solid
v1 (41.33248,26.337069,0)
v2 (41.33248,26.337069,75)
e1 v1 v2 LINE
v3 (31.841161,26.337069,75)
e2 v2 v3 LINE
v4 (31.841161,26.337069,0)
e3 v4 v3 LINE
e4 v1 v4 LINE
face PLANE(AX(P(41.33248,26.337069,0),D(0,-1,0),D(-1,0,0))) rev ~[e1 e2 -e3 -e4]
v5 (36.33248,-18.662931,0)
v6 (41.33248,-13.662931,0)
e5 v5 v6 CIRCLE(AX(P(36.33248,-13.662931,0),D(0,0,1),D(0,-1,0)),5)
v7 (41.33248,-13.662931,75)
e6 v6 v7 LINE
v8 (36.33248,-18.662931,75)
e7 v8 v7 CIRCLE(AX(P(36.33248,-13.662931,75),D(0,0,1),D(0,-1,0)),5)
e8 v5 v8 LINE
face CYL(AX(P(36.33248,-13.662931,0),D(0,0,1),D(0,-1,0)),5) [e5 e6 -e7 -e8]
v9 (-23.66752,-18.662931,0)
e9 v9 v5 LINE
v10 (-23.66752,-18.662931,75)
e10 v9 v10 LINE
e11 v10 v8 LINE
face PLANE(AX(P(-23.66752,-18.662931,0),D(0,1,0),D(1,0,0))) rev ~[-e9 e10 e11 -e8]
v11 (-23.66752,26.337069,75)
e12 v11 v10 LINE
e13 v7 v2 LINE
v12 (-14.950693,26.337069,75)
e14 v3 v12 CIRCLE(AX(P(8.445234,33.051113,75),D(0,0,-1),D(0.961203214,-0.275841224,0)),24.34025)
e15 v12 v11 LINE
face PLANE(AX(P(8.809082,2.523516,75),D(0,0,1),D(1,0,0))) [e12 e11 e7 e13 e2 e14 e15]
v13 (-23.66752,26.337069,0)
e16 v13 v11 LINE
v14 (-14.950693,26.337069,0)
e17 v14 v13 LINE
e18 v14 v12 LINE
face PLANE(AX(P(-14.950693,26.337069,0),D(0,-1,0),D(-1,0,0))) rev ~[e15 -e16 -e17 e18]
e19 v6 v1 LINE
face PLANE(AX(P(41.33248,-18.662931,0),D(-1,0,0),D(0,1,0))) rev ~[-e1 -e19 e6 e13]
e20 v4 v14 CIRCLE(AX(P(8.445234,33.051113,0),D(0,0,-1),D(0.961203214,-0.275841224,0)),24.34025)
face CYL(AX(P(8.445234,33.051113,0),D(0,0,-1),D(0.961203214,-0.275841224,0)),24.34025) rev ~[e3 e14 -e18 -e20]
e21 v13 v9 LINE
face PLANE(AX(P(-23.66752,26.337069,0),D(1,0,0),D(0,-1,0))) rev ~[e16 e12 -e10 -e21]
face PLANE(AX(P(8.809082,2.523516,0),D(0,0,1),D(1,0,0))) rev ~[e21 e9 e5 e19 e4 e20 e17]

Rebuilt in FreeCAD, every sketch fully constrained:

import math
import FreeCAD as App
import Part
import Sketcher
Q = App.Units.Quantity


def edges_at(feature, points):
    """Names of the edges that pass closest to the given points."""
    edges = feature.Shape.Edges
    near = lambda p: min(range(len(edges)), key=lambda i: edges[i].distToShape(Part.Vertex(*p))[0])
    return sorted({f"Edge{near(p) + 1}" for p in points})

doc = App.newDocument("Part")
params = doc.addObject("Spreadsheet::Sheet", "Params")
for row, (alias, value) in enumerate([
    ("sketch1_width", "65 mm"),
    ("sketch1_height", "45 mm"),
    ("pad1_length", "75 mm"),
    ("fillet_radius", "5 mm"),
], start=1):
    params.set(f"A{row}", alias)
    params.set(f"B{row}", "=" + value)
    params.setAlias(f"B{row}", alias)

body = doc.addObject("PartDesign::Body", "Body")

# Sketch on XY plane
sketch1 = body.newObject("Sketcher::SketchObject", "Sketch")
sketch1.AttachmentSupport = (doc.getObject("XY_Plane"), [""])
sketch1.MapMode = "FlatFace"
sketch1.addGeometry([
    Part.LineSegment(App.Vector(-23.66752, 26.337069, 0), App.Vector(-23.66752, -18.662931, 0)),  # 0
    Part.LineSegment(App.Vector(-23.66752, -18.662931, 0), App.Vector(41.33248, -18.662931, 0)),  # 1
    Part.LineSegment(App.Vector(41.33248, -18.662931, 0), App.Vector(41.33248, 26.337069, 0)),  # 2
    Part.LineSegment(App.Vector(41.33248, 26.337069, 0), App.Vector(31.841161, 26.337069, 0)),  # 3
    Part.ArcOfCircle(Part.Circle(App.Vector(8.445234, 33.051113, 0), App.Vector(0, 0, 1), 24.34025), math.radians(-163.987848), math.radians(-16.012152)),  # 4
    Part.LineSegment(App.Vector(-14.950693, 26.337069, 0), App.Vector(-23.66752, 26.337069, 0)),  # 5
], False)
sketch1.addConstraint([
    Sketcher.Constraint("Coincident", 0, 2, 1, 1),
    Sketcher.Constraint("Coincident", 1, 2, 2, 1),
    Sketcher.Constraint("Coincident", 2, 2, 3, 1),
    Sketcher.Constraint("Coincident", 3, 2, 4, 2),
    Sketcher.Constraint("Coincident", 4, 1, 5, 1),
    Sketcher.Constraint("Coincident", 5, 2, 0, 1),
    Sketcher.Constraint("Vertical", 0),
    Sketcher.Constraint("Horizontal", 1),
    Sketcher.Constraint("Vertical", 2),
    Sketcher.Constraint("Horizontal", 3),
    Sketcher.Constraint("Horizontal", 5),
    Sketcher.Constraint("Horizontal", 3, 2, 4, 1),
    Sketcher.Constraint("DistanceX", 1, 1, 1, 2, Q("65 mm")),
    Sketcher.Constraint("DistanceY", 0, 2, 0, 1, Q("45 mm")),
    Sketcher.Constraint("Radius", 4, Q("24.34025 mm")),
    Sketcher.Constraint("DistanceX", 3, 2, 3, 1, Q("9.491319 mm")),
    Sketcher.Constraint("DistanceX", 5, 2, 5, 1, Q("8.716827 mm")),
    Sketcher.Constraint("DistanceX", 0, 2, -1, 1, Q("23.66752 mm")),
    Sketcher.Constraint("DistanceY", 0, 2, -1, 1, Q("18.662931 mm")),
])
sketch1.setExpression("Constraints[12]", "Params.sketch1_width")
sketch1.setExpression("Constraints[13]", "Params.sketch1_height")
pad1 = body.newObject("PartDesign::Pad", "Pad")
pad1.Profile = sketch1
pad1.setExpression("Length", "Params.pad1_length")
doc.recompute()

fillet = body.newObject("PartDesign::Fillet", "Fillet")
fillet.Base = (pad1, edges_at(pad1, [(41.332, -18.663, 37.5)]))
fillet.setExpression("Radius", "Params.fillet_radius")

doc.recompute()
